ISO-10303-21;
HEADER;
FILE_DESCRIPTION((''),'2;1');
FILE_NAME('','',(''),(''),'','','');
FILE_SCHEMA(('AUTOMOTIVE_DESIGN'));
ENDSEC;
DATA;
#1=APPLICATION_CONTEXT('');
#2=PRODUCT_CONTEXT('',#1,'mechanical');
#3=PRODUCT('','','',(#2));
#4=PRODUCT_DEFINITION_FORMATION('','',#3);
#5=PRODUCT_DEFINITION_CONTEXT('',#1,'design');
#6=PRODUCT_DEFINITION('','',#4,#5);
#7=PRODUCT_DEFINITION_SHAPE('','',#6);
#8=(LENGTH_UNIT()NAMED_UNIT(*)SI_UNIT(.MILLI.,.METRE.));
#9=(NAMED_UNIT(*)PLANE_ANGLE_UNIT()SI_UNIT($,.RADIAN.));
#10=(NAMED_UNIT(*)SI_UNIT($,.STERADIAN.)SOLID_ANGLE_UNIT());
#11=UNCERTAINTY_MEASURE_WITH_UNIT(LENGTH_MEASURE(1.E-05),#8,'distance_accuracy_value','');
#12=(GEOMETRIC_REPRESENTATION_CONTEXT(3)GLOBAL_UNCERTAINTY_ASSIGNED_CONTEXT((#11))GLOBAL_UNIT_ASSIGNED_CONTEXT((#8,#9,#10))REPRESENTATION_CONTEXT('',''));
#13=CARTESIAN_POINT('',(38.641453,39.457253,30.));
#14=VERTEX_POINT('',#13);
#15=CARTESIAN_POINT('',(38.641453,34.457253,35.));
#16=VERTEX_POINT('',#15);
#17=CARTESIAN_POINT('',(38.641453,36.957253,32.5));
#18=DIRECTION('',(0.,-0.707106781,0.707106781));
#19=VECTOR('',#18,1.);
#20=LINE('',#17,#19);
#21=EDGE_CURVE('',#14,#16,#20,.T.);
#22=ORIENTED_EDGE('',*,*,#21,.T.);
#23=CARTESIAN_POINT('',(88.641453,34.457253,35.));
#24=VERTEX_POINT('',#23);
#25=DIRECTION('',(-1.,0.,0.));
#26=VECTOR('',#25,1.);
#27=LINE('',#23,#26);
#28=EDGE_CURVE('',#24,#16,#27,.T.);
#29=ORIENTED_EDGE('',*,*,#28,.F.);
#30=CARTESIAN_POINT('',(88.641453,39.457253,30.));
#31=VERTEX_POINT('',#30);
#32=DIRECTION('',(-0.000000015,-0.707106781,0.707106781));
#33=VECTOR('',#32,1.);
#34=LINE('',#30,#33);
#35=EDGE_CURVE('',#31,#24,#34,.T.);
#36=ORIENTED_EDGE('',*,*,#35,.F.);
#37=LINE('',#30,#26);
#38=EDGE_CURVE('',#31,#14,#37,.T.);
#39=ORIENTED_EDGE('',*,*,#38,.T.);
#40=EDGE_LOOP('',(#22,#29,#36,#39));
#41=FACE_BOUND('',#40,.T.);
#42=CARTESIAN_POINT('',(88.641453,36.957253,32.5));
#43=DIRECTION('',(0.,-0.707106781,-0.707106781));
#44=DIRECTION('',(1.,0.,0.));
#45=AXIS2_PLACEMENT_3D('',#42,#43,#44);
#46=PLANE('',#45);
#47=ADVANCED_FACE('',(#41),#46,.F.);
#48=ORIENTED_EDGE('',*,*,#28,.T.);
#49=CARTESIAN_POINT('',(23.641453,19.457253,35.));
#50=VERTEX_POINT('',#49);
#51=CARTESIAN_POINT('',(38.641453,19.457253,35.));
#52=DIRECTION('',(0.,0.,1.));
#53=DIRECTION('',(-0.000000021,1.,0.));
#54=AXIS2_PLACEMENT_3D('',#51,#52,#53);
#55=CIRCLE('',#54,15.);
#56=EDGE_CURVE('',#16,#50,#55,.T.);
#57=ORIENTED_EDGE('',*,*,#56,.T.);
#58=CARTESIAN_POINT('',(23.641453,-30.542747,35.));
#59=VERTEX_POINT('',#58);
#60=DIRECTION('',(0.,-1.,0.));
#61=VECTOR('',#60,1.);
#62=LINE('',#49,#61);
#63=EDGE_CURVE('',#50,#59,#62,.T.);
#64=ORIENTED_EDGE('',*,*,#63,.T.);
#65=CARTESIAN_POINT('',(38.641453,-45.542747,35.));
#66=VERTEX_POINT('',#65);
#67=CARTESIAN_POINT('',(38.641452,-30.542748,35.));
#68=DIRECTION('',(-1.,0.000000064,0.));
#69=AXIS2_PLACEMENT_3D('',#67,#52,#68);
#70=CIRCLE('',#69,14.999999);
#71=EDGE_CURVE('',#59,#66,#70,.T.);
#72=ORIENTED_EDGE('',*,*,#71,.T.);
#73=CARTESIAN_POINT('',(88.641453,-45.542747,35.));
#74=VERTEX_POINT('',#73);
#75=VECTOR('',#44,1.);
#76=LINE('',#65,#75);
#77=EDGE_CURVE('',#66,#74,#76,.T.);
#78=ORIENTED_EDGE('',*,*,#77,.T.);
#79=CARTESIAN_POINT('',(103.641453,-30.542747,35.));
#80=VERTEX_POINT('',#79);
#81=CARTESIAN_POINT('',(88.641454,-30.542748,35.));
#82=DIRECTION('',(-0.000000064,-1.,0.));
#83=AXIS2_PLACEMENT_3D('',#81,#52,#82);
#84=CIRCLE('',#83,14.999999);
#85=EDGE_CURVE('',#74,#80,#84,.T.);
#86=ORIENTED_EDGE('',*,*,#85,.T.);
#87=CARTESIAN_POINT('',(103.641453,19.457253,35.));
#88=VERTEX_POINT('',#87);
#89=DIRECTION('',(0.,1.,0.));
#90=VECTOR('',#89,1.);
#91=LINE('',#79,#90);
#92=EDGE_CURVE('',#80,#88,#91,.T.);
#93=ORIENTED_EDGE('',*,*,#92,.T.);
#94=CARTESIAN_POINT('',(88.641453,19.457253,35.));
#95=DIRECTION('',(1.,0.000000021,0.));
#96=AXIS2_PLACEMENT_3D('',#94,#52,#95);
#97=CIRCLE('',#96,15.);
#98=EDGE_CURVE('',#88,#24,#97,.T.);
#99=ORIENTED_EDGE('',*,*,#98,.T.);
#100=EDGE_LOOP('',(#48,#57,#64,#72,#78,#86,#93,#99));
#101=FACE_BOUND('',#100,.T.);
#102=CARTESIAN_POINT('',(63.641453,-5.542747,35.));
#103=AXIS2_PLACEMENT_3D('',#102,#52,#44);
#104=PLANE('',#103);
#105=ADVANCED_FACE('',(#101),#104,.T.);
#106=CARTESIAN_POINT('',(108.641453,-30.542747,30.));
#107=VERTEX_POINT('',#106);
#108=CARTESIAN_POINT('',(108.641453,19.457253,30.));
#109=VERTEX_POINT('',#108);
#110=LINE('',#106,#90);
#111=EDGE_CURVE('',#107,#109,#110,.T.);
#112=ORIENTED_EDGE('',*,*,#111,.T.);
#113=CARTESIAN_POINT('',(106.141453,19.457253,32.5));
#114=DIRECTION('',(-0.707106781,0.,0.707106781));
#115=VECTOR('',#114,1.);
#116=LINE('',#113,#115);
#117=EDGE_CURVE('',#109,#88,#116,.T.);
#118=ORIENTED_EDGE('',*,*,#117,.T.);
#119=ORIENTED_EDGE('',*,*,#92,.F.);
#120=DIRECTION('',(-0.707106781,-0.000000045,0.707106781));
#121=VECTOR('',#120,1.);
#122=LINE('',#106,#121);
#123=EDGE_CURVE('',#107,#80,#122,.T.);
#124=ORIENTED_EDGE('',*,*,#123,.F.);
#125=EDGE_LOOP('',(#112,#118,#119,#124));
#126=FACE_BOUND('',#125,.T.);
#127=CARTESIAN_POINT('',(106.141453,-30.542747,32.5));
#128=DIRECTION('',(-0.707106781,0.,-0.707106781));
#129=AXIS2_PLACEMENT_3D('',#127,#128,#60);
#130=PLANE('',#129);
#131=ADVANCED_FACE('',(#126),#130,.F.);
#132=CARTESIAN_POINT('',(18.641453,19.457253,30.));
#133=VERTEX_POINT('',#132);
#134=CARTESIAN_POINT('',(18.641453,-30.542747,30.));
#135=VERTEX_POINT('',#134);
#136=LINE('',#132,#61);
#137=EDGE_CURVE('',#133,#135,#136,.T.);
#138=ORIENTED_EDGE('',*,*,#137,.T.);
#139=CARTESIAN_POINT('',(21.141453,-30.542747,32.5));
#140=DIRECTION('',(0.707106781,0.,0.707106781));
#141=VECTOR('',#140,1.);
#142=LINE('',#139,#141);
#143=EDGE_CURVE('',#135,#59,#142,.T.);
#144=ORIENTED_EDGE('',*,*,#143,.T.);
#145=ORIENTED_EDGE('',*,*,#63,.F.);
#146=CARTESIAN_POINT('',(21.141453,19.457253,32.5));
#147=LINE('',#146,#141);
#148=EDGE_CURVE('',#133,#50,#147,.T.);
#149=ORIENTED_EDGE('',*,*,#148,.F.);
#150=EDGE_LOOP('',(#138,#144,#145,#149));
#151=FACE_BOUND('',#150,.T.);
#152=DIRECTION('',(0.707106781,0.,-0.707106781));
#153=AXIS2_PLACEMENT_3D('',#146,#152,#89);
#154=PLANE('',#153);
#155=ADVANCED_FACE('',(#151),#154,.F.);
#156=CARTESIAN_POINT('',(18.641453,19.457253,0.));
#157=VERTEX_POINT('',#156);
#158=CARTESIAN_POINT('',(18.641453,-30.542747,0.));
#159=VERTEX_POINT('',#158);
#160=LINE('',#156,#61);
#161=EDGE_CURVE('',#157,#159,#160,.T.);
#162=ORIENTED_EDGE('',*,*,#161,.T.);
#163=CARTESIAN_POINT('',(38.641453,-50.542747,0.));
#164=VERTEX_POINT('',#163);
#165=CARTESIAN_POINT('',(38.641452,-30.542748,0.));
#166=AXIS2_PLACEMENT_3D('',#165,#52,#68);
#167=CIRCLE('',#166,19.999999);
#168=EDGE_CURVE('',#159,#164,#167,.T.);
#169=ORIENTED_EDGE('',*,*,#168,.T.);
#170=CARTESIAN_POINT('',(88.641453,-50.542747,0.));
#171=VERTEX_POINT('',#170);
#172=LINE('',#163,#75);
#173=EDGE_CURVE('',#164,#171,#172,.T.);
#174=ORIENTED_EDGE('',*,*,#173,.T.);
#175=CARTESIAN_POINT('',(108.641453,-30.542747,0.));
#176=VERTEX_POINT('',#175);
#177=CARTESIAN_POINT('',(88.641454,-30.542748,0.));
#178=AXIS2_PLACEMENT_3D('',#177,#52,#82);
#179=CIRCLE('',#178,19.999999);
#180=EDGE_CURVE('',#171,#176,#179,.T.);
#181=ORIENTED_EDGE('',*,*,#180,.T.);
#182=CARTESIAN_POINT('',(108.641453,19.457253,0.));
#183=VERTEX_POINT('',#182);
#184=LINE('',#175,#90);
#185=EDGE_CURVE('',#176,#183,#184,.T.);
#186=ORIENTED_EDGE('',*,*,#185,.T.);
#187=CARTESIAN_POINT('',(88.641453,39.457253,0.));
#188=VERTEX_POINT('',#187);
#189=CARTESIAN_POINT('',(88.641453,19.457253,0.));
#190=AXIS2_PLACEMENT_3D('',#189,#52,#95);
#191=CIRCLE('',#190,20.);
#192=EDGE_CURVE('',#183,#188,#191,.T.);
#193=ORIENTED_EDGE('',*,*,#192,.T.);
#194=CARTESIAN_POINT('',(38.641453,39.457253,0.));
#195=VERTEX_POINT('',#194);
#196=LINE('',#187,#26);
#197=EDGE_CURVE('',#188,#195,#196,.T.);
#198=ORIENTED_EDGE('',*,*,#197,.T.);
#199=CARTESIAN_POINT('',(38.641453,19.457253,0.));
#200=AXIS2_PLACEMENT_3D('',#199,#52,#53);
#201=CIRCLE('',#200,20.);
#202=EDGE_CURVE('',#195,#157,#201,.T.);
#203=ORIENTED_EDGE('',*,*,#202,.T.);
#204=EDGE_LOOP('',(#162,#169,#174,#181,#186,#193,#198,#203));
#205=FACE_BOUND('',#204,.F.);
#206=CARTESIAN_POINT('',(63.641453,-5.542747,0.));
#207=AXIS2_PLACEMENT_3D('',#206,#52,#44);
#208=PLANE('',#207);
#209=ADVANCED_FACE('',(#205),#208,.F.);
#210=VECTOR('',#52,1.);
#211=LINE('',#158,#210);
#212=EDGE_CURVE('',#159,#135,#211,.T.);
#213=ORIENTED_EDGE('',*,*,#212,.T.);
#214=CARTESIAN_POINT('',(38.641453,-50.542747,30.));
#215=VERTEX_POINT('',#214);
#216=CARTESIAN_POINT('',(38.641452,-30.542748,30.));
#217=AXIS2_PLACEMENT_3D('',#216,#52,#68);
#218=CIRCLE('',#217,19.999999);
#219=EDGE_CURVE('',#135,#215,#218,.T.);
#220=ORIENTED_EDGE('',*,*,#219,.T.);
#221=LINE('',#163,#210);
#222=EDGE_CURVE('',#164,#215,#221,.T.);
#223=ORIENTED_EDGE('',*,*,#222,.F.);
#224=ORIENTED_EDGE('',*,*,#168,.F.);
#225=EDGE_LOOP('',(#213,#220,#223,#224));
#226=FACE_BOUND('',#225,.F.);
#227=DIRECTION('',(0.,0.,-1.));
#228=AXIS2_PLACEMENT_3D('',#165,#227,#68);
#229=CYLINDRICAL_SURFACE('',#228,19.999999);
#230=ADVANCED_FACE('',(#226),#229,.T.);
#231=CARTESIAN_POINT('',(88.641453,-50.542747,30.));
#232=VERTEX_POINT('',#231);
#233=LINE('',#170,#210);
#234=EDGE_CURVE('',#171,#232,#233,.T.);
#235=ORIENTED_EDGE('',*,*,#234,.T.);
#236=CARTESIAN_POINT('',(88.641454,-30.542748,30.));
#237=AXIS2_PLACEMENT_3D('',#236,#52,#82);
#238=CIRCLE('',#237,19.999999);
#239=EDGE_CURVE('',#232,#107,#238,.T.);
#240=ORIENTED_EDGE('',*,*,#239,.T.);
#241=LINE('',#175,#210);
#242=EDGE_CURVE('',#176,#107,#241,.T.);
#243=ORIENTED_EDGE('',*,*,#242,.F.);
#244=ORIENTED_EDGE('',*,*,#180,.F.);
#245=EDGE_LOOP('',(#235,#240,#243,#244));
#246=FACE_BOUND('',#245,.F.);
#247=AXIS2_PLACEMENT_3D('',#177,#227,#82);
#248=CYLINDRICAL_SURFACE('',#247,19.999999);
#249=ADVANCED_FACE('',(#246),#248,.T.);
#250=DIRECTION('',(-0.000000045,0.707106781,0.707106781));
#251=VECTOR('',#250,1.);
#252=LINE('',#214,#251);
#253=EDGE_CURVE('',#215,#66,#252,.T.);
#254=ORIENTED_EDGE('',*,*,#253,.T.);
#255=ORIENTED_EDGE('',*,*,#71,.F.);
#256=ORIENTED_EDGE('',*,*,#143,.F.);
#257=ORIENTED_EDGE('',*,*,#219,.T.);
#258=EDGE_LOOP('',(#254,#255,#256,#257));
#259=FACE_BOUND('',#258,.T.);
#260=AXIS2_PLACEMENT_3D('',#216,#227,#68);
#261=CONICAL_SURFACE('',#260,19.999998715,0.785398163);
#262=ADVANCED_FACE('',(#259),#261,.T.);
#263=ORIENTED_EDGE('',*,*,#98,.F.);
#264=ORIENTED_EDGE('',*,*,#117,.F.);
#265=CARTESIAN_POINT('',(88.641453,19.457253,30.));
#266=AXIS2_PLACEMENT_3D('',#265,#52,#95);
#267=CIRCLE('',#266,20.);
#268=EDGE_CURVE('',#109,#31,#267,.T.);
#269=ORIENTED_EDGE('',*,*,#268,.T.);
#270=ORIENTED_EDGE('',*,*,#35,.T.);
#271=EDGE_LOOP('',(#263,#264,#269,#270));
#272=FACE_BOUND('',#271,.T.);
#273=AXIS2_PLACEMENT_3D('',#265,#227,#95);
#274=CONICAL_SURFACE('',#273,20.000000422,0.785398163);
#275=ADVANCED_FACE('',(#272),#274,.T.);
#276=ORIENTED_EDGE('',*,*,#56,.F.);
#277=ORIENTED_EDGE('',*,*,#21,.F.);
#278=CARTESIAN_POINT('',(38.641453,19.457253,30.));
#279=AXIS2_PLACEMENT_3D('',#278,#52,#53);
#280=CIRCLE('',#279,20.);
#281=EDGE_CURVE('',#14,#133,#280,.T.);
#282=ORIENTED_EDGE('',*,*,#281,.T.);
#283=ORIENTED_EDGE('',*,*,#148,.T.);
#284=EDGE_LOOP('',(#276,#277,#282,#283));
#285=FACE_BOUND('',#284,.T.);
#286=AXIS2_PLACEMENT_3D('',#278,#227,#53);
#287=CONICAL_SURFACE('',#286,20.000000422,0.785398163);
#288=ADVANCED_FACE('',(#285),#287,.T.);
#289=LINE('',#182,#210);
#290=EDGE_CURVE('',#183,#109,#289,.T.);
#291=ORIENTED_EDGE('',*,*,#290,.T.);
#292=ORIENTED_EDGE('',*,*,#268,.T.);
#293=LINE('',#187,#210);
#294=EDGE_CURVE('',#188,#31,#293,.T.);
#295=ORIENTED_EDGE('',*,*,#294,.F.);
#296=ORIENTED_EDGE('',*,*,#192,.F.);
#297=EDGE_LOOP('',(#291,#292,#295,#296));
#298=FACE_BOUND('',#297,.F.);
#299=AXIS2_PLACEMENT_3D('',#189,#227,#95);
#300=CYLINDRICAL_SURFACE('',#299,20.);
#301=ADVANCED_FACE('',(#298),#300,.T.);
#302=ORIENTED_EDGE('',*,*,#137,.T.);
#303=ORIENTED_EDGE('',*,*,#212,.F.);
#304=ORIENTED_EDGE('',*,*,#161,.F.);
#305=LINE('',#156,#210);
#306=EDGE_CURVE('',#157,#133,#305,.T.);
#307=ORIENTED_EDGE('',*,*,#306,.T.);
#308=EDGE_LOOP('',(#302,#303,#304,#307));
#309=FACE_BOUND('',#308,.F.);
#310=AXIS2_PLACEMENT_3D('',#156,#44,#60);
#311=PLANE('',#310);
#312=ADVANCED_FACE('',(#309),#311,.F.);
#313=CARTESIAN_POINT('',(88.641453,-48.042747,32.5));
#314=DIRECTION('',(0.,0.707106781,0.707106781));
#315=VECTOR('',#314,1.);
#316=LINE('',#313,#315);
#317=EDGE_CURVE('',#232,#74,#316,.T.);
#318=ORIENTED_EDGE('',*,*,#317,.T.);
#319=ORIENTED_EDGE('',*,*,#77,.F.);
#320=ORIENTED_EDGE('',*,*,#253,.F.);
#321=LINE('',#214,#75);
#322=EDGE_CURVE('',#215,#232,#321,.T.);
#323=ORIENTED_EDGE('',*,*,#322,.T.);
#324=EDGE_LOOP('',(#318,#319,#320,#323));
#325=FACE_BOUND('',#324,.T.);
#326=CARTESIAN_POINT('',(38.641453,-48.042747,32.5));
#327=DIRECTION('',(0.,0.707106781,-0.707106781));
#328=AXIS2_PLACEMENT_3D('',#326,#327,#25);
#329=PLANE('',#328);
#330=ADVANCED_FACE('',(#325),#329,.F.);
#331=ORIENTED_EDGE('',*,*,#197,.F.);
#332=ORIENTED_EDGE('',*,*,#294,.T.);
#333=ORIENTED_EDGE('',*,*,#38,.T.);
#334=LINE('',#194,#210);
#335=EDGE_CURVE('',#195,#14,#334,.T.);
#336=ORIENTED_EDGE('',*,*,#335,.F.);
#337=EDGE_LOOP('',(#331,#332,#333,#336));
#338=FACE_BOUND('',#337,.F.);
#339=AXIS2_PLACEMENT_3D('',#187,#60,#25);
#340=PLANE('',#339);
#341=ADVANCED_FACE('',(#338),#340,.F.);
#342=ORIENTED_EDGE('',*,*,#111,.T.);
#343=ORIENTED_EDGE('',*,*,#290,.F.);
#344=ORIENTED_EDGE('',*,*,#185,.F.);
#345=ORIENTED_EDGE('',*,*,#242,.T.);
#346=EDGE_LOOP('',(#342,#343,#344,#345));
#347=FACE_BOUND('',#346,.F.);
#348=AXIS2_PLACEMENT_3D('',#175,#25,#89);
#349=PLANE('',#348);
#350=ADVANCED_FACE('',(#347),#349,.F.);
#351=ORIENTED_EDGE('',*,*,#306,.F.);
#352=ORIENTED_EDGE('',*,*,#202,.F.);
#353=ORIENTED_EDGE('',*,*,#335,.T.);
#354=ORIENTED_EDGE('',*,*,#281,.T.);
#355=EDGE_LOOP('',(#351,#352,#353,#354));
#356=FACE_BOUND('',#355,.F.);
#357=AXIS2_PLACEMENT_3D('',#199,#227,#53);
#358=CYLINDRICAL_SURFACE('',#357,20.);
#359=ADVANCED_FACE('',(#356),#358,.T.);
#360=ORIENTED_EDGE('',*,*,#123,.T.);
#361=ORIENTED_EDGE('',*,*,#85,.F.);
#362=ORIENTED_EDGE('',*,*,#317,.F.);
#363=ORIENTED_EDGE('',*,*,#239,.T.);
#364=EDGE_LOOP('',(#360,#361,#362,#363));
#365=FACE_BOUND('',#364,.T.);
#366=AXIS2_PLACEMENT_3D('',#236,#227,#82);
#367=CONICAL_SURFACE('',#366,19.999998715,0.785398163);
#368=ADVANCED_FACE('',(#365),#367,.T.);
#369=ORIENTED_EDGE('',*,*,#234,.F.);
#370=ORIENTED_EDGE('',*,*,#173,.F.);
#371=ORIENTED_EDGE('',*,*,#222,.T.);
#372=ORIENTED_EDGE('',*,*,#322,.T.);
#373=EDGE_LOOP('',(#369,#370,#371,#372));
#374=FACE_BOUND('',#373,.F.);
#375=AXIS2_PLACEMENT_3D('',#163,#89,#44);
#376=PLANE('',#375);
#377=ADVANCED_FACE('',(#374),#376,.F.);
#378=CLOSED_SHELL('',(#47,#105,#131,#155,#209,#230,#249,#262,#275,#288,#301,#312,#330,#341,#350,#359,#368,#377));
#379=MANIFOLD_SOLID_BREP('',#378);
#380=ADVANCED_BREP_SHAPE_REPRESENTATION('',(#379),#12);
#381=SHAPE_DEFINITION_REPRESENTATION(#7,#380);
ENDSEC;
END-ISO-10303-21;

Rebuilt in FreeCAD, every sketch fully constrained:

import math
import FreeCAD as App
import Part
import Sketcher


def edges_at(feature, points):
    """Names of the edges that pass closest to the given points."""
    edges = feature.Shape.Edges
    near = lambda p: min(range(len(edges)), key=lambda i: edges[i].distToShape(Part.Vertex(*p))[0])
    return sorted({f"Edge{near(p) + 1}" for p in points})

doc = App.newDocument("Part")
body = doc.addObject("PartDesign::Body", "Body")

# Sketch on XY plane
sketch1 = body.newObject("Sketcher::SketchObject", "Sketch")
sketch1.AttachmentSupport = (doc.getObject("XY_Plane"), [""])
sketch1.MapMode = "FlatFace"
sketch1.addGeometry(Part.LineSegment(App.Vector(89, 39, 0), App.Vector(39, 39, 0)), False)
sketch1.addGeometry(Part.ArcOfCircle(Part.Circle(App.Vector(39, 19, 0), App.Vector(0, 0, 1), 20), math.radians(90), math.radians(180)), False)
sketch1.addGeometry(Part.LineSegment(App.Vector(19, 19, 0), App.Vector(19, -31, 0)), False)
sketch1.addGeometry(Part.ArcOfCircle(Part.Circle(App.Vector(39, -31, 0), App.Vector(0, 0, 1), 20), math.radians(180), math.radians(270)), False)
sketch1.addGeometry(Part.LineSegment(App.Vector(39, -51, 0), App.Vector(89, -51, 0)), False)
sketch1.addGeometry(Part.ArcOfCircle(Part.Circle(App.Vector(89, -31, 0), App.Vector(0, 0, 1), 20), math.radians(-90), math.radians(0)), False)
sketch1.addGeometry(Part.LineSegment(App.Vector(109, -31, 0), App.Vector(109, 19, 0)), False)
sketch1.addGeometry(Part.ArcOfCircle(Part.Circle(App.Vector(89, 19, 0), App.Vector(0, 0, 1), 20), math.radians(0), math.radians(90)), False)
sketch1.addConstraint(Sketcher.Constraint("Tangent", 0, 2, 1, 1))
sketch1.addConstraint(Sketcher.Constraint("Tangent", 1, 2, 2, 1))
sketch1.addConstraint(Sketcher.Constraint("Tangent", 2, 2, 3, 1))
sketch1.addConstraint(Sketcher.Constraint("Tangent", 3, 2, 4, 1))
sketch1.addConstraint(Sketcher.Constraint("Tangent", 4, 2, 5, 1))
sketch1.addConstraint(Sketcher.Constraint("Tangent", 5, 2, 6, 1))
sketch1.addConstraint(Sketcher.Constraint("Tangent", 6, 2, 7, 1))
sketch1.addConstraint(Sketcher.Constraint("Tangent", 7, 2, 0, 1))
sketch1.addConstraint(Sketcher.Constraint("Horizontal", 0))
sketch1.addConstraint(Sketcher.Constraint("Vertical", 2))
sketch1.addConstraint(Sketcher.Constraint("Horizontal", 4))
sketch1.addConstraint(Sketcher.Constraint("Vertical", 6))
sketch1.addConstraint(Sketcher.Constraint("Equal", 1, 3))
sketch1.addConstraint(Sketcher.Constraint("Equal", 3, 5))
sketch1.addConstraint(Sketcher.Constraint("Equal", 5, 7))
sketch1.addConstraint(Sketcher.Constraint("Equal", 4, 2))
sketch1.addConstraint(Sketcher.Constraint("Radius", 1, 20.0))
sketch1.addConstraint(Sketcher.Constraint("DistanceX", 0, 2, 0, 1, 50.0))
sketch1.addConstraint(Sketcher.Constraint("DistanceX", -1, 1, 3, 3, 38.641452))
sketch1.addConstraint(Sketcher.Constraint("DistanceY", 3, 3, -1, 1, 30.542748))
pad1 = body.newObject("PartDesign::Pad", "Pad")
pad1.Profile = sketch1
pad1.Length = 35
doc.recompute()

chamfer = body.newObject("PartDesign::Chamfer", "Chamfer")
chamfer.Base = (pad1, edges_at(pad1, [(18.641, -5.543, 35)]))
chamfer.Size = 5

doc.recompute()
